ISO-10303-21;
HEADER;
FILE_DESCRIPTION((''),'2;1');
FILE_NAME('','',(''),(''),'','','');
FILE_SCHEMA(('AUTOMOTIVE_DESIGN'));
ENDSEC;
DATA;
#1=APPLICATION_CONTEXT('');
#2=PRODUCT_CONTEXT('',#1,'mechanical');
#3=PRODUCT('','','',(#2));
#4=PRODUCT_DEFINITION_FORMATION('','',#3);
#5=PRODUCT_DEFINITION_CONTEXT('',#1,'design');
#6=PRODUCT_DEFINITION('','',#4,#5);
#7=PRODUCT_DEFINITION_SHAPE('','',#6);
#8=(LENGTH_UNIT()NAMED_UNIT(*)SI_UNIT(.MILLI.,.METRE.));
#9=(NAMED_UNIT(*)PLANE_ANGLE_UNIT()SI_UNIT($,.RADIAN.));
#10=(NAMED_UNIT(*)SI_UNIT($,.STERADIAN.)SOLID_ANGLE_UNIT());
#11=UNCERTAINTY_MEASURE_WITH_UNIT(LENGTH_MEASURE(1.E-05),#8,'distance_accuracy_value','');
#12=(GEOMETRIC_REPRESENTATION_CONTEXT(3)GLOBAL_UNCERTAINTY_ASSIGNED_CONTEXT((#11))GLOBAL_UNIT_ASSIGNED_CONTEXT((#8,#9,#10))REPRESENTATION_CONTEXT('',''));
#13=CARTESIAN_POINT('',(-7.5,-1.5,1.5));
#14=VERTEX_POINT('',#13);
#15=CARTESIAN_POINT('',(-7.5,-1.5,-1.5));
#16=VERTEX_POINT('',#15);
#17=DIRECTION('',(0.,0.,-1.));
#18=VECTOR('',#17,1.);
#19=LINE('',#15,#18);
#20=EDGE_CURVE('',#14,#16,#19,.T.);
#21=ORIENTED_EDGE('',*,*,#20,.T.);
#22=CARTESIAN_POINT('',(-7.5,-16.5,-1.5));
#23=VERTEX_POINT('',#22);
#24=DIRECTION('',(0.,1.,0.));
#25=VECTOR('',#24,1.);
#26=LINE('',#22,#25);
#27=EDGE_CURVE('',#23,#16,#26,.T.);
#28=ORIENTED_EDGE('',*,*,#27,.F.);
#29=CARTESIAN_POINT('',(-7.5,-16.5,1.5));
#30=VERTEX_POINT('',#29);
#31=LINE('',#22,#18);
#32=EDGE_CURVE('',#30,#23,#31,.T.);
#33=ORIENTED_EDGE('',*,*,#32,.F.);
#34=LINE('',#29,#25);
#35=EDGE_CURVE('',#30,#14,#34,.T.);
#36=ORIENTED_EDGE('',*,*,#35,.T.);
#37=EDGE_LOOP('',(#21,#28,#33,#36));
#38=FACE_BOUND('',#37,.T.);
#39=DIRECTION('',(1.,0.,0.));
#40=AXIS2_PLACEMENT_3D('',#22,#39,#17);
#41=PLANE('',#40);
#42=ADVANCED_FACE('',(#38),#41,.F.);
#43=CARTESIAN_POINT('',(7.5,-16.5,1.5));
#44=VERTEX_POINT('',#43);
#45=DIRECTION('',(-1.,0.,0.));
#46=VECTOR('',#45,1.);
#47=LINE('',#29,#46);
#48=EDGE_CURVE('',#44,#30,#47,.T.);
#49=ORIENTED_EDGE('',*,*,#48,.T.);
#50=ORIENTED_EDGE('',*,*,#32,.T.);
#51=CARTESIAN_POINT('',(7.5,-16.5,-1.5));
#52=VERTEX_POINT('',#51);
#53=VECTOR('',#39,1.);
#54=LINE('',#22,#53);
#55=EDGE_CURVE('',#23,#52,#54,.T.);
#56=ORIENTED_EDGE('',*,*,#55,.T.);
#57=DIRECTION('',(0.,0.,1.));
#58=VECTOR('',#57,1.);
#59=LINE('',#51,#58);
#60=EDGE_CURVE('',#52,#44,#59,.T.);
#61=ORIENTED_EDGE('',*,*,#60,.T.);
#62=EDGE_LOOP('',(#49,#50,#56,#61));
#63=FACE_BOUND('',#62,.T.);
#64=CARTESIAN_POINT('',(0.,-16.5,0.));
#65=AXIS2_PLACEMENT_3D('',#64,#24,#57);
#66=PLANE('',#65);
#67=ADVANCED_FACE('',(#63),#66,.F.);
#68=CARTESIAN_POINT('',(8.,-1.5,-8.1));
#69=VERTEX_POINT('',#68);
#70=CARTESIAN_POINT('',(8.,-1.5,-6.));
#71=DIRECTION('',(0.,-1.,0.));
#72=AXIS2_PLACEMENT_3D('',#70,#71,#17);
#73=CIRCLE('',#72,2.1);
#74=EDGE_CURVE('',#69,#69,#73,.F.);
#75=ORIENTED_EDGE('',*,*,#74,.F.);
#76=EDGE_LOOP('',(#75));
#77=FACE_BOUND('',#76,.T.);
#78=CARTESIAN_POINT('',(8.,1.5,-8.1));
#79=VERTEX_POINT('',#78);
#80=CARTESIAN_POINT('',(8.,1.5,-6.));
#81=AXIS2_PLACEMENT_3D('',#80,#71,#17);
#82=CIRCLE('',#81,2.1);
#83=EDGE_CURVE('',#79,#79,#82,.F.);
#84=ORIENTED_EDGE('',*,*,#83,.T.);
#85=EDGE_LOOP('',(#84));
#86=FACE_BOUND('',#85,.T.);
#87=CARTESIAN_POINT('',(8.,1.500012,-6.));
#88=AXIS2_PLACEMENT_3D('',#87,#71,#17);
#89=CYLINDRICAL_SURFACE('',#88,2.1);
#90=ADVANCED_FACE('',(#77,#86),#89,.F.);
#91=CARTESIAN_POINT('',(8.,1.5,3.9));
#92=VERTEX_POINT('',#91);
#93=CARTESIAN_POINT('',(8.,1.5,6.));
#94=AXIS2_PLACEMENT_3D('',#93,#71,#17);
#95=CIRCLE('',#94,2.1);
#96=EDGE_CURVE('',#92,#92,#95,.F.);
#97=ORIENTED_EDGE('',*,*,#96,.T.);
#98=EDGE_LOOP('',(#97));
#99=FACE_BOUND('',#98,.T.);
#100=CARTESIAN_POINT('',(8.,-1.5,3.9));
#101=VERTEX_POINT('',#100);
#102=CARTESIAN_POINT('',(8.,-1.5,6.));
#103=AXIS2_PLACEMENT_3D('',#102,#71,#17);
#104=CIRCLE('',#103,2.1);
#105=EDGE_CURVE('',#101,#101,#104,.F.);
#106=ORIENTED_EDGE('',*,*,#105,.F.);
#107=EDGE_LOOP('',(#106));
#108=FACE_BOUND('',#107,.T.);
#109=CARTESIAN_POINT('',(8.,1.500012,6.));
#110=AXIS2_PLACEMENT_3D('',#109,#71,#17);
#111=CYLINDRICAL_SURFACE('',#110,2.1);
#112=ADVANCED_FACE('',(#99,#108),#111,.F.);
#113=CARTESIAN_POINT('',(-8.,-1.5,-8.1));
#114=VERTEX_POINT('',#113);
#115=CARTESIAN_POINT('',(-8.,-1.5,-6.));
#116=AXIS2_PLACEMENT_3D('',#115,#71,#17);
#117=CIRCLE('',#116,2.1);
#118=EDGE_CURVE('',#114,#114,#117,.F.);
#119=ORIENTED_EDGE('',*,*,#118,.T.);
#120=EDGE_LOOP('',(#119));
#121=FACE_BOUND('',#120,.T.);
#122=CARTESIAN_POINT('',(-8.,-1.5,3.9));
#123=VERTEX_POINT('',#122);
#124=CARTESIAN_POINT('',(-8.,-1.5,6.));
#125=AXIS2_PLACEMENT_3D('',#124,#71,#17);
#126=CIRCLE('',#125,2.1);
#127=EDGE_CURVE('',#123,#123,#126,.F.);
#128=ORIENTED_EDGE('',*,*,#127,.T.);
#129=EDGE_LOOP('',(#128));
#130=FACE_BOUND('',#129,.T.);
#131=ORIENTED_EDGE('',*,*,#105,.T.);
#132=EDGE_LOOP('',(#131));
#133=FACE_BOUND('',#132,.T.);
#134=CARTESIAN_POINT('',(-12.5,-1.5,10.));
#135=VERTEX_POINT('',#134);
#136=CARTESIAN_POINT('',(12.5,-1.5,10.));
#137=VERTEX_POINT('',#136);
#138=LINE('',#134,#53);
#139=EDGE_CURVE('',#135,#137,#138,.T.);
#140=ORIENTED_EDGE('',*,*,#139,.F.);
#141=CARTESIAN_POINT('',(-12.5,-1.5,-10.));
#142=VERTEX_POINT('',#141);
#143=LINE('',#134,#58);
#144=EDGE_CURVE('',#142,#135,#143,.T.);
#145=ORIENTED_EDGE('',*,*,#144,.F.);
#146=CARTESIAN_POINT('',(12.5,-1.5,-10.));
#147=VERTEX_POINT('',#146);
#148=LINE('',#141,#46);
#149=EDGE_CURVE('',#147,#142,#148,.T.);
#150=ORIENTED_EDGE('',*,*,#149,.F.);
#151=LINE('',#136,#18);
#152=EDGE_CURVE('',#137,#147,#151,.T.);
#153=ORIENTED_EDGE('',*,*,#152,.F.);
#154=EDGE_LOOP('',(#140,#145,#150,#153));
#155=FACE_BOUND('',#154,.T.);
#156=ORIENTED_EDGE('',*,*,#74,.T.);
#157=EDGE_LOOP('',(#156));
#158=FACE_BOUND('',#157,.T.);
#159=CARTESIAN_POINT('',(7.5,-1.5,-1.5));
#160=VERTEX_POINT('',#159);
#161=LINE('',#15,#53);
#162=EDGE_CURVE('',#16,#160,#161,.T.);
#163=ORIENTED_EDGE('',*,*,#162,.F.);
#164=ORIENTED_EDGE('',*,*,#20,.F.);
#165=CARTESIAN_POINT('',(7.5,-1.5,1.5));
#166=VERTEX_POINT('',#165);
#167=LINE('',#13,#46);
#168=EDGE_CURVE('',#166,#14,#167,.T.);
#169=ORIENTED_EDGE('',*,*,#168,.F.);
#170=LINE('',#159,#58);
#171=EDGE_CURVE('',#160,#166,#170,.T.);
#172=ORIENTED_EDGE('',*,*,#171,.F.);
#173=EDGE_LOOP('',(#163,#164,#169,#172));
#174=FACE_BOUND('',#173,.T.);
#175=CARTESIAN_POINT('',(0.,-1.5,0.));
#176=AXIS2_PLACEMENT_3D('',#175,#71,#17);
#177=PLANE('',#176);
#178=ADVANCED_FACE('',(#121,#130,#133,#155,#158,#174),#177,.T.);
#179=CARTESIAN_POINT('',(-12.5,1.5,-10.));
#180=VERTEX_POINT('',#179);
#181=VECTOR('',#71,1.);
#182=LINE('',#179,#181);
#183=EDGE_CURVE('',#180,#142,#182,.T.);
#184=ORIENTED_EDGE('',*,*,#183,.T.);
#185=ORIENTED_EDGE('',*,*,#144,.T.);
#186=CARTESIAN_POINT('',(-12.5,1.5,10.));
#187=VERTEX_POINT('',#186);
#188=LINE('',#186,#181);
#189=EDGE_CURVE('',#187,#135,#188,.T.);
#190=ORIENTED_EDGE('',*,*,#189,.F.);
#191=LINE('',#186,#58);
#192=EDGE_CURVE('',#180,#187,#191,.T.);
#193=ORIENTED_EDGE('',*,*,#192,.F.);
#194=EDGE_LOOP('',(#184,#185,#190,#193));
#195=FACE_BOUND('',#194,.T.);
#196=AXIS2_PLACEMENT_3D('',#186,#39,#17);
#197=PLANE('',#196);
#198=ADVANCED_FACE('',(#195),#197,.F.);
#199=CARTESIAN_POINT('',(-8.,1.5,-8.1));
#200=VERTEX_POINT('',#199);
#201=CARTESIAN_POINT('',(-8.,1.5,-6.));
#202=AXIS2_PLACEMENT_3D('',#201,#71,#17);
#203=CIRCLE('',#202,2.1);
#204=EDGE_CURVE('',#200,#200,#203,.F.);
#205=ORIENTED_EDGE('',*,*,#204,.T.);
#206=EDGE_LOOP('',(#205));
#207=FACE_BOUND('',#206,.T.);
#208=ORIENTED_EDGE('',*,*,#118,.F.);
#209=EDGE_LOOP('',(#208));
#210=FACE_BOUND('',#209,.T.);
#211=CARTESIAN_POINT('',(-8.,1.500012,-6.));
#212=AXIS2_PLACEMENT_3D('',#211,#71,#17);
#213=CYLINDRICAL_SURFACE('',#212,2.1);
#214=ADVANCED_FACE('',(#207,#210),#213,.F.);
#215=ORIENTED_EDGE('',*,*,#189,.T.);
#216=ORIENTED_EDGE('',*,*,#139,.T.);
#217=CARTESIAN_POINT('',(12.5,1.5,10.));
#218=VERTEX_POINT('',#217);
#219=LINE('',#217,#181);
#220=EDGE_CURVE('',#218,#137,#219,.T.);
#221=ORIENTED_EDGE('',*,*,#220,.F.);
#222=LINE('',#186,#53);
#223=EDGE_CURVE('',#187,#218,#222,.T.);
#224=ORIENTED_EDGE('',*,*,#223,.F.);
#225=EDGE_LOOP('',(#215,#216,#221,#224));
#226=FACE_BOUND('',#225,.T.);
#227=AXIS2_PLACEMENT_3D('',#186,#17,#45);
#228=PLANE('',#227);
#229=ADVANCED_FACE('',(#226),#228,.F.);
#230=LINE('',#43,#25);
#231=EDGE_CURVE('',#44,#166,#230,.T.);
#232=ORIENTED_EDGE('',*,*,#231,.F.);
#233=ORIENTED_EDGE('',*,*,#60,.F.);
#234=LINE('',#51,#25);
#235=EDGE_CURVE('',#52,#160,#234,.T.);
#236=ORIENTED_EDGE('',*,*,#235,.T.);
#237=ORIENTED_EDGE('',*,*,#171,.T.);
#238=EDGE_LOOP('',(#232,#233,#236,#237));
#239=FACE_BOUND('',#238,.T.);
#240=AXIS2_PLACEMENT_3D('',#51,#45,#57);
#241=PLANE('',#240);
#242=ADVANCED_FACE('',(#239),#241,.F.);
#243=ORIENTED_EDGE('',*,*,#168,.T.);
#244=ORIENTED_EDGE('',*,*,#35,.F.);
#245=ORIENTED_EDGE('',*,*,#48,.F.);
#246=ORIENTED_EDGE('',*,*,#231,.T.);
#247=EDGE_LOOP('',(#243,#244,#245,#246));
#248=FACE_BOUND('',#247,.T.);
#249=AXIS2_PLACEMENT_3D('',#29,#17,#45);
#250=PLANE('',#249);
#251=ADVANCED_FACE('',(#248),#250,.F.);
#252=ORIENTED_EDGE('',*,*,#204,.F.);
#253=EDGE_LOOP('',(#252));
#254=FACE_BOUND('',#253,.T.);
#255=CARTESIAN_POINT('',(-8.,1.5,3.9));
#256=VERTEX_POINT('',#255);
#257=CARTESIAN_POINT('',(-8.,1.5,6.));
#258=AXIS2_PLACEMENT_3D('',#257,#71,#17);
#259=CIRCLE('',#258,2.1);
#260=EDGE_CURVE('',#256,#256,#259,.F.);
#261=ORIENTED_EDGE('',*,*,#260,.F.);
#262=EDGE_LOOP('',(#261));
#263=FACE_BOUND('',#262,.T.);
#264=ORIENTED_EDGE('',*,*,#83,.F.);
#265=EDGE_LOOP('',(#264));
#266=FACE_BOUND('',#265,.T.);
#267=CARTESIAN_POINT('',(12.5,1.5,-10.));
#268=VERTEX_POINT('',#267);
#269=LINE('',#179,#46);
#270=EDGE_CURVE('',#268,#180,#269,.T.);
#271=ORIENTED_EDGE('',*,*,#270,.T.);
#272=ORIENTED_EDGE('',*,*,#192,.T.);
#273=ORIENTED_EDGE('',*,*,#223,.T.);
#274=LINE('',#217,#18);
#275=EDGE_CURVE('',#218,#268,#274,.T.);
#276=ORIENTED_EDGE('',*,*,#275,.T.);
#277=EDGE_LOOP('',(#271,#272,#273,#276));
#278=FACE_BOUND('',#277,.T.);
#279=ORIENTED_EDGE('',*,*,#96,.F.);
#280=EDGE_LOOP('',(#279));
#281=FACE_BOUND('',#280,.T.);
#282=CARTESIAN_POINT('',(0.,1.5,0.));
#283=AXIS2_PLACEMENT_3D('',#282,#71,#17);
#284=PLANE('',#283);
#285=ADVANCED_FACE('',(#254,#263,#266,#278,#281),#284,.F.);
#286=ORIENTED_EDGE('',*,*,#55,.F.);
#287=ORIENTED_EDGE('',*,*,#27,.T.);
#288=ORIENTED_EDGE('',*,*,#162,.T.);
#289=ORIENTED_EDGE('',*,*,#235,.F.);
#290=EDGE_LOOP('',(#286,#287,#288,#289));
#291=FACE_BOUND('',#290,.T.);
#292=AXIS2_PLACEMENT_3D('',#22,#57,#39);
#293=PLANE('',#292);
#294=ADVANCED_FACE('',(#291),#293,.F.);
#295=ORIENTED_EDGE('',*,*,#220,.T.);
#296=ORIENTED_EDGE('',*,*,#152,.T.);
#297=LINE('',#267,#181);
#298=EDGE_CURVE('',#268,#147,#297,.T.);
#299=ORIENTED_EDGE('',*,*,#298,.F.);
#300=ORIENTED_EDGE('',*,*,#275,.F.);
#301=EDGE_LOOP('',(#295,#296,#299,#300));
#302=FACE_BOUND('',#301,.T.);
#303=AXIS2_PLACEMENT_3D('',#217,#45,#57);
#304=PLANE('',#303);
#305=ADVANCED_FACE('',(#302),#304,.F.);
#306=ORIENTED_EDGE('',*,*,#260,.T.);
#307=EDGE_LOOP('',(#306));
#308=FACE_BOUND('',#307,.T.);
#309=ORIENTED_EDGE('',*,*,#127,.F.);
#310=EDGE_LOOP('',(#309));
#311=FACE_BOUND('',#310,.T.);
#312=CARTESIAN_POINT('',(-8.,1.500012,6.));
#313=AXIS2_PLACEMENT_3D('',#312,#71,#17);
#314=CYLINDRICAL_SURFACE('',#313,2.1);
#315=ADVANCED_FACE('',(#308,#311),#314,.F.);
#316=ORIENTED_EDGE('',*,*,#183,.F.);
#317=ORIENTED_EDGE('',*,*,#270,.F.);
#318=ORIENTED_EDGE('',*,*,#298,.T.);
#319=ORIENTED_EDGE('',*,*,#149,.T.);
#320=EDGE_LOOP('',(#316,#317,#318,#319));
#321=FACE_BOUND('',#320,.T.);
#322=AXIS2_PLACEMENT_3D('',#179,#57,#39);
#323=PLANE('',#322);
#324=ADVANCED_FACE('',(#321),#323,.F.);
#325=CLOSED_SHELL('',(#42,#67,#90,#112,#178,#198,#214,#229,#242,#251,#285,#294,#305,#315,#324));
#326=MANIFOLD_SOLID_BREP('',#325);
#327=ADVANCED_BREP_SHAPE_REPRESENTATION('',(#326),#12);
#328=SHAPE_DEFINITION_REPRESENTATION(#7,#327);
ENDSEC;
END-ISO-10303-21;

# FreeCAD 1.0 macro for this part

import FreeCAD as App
import Part
import Sketcher

V = App.Vector
Q = App.Units.Quantity


def add_polygon(sketch, points):
    """Adds a closed chain of lines whose ends are joined by coincident constraints."""
    first, n = sketch.GeometryCount, len(points)
    for a, b in zip(points, points[1:] + points[:1]):
        sketch.addGeometry(Part.LineSegment(App.Vector(*a, 0), App.Vector(*b, 0)), False)
    for i in range(n):
        sketch.addConstraint(Sketcher.Constraint("Coincident", first + i, 2, first + (i + 1) % n, 1))

doc = App.newDocument("Part")
params = doc.addObject("Spreadsheet::Sheet", "Params")
for row, (alias, value) in enumerate([
    ("sketch1_width", "25 mm"),
    ("sketch1_height", "20 mm"),
    ("pad1_length", "3 mm"),
    ("sketch2_width", "15 mm"),
    ("sketch2_height", "3 mm"),
    ("pad2_length", "15 mm"),
    ("sketch3_diameter", "4.2 mm"),
    ("sketch4_diameter", "4.2 mm"),
    ("sketch5_diameter", "4.2 mm"),
    ("sketch6_diameter", "4.2 mm"),
    ("sketch7_diameter", "4.2 mm"),
    ("pocket5_length", "1 mm"),
], start=1):
    params.set(f"A{row}", alias)
    params.set(f"B{row}", "=" + value)
    params.setAlias(f"B{row}", alias)

body = doc.addObject("PartDesign::Body", "Body")

sketch1 = doc.addObject("Sketcher::SketchObject", "Sketch")
body.addObject(sketch1)
sketch1.AttachmentSupport = (doc.XZ_Plane, [""])
sketch1.MapMode = "FlatFace"
add_polygon(sketch1, [(-12.5, -10), (-12.5, 10), (12.5, 10), (12.5, -10)])
sketch1.addConstraint([
    Sketcher.Constraint("Vertical", 0),
    Sketcher.Constraint("Horizontal", 1),
    Sketcher.Constraint("Vertical", 2),
    Sketcher.Constraint("Horizontal", 3),
    Sketcher.Constraint("Symmetric", 0, 2, 2, 2, -1, 1),
    Sketcher.Constraint("DistanceX", 1, 1, 1, 2, Q("25 mm")),
    Sketcher.Constraint("DistanceY", 0, 1, 0, 2, Q("20 mm")),
])
sketch1.setExpression("Constraints[9]", "Params.sketch1_width")
sketch1.setExpression("Constraints[10]", "Params.sketch1_height")
pad1 = doc.addObject("PartDesign::Pad", "Pad")
body.addObject(pad1)
pad1.Profile = sketch1
pad1.setExpression("Length", "Params.pad1_length")
pad1.Midplane = True

sketch2 = doc.addObject("Sketcher::SketchObject", "Sketch001")
body.addObject(sketch2)
sketch2.AttachmentSupport = (doc.XZ_Plane, [""])
sketch2.MapMode = "FlatFace"
sketch2.AttachmentOffset = App.Placement(V(0, 0, 1.5), App.Rotation())
add_polygon(sketch2, [(-7.5, 1.5), (-7.5, -1.5), (7.5, -1.5), (7.5, 1.5)])
sketch2.addConstraint([
    Sketcher.Constraint("Vertical", 0),
    Sketcher.Constraint("Horizontal", 1),
    Sketcher.Constraint("Vertical", 2),
    Sketcher.Constraint("Horizontal", 3),
    Sketcher.Constraint("Symmetric", 0, 2, 2, 2, -1, 1),
    Sketcher.Constraint("DistanceX", 1, 1, 1, 2, Q("15 mm")),
    Sketcher.Constraint("DistanceY", 0, 2, 0, 1, Q("3 mm")),
])
sketch2.setExpression("Constraints[9]", "Params.sketch2_width")
sketch2.setExpression("Constraints[10]", "Params.sketch2_height")
pad2 = doc.addObject("PartDesign::Pad", "Pad001")
body.addObject(pad2)
pad2.Profile = sketch2
pad2.setExpression("Length", "Params.pad2_length")

sketch3 = doc.addObject("Sketcher::SketchObject", "Sketch002")
body.addObject(sketch3)
sketch3.AttachmentSupport = (doc.XZ_Plane, [""])
sketch3.MapMode = "FlatFace"
sketch3.AttachmentOffset = App.Placement(V(0, 0, -1.5), App.Rotation())
sketch3.addGeometry(Part.Circle(V(-8, -6, 0), V(0, 0, 1), 2.1), False)
sketch3.addConstraint([
    Sketcher.Constraint("Diameter", 0, Q("4.2 mm")),
    Sketcher.Constraint("DistanceX", 0, 3, -1, 1, Q("8 mm")),
    Sketcher.Constraint("DistanceY", 0, 3, -1, 1, Q("6 mm")),
])
sketch3.setExpression("Constraints[0]", "Params.sketch3_diameter")
pocket1 = doc.addObject("PartDesign::Pocket", "Pocket")
body.addObject(pocket1)
pocket1.Profile = sketch3
pocket1.Type = "UpToFirst"
pocket1.Reversed = True

sketch4 = doc.addObject("Sketcher::SketchObject", "Sketch003")
body.addObject(sketch4)
sketch4.AttachmentSupport = (doc.XZ_Plane, [""])
sketch4.MapMode = "FlatFace"
sketch4.AttachmentOffset = App.Placement(V(0, 0, -1.5), App.Rotation())
sketch4.addGeometry(Part.Circle(V(8, -6, 0), V(0, 0, 1), 2.1), False)
sketch4.addConstraint([
    Sketcher.Constraint("Diameter", 0, Q("4.2 mm")),
    Sketcher.Constraint("DistanceX", -1, 1, 0, 3, Q("8 mm")),
    Sketcher.Constraint("DistanceY", 0, 3, -1, 1, Q("6 mm")),
])
sketch4.setExpression("Constraints[0]", "Params.sketch4_diameter")
pocket2 = doc.addObject("PartDesign::Pocket", "Pocket001")
body.addObject(pocket2)
pocket2.Profile = sketch4
pocket2.Type = "UpToFirst"
pocket2.Reversed = True

sketch5 = doc.addObject("Sketcher::SketchObject", "Sketch004")
body.addObject(sketch5)
sketch5.AttachmentSupport = (doc.XZ_Plane, [""])
sketch5.MapMode = "FlatFace"
sketch5.AttachmentOffset = App.Placement(V(0, 0, -1.5), App.Rotation())
sketch5.addGeometry(Part.Circle(V(8, 6, 0), V(0, 0, 1), 2.1), False)
sketch5.addConstraint([
    Sketcher.Constraint("Diameter", 0, Q("4.2 mm")),
    Sketcher.Constraint("DistanceX", -1, 1, 0, 3, Q("8 mm")),
    Sketcher.Constraint("DistanceY", -1, 1, 0, 3, Q("6 mm")),
])
sketch5.setExpression("Constraints[0]", "Params.sketch5_diameter")
pocket3 = doc.addObject("PartDesign::Pocket", "Pocket002")
body.addObject(pocket3)
pocket3.Profile = sketch5
pocket3.Type = "UpToFirst"
pocket3.Reversed = True

sketch6 = doc.addObject("Sketcher::SketchObject", "Sketch005")
body.addObject(sketch6)
sketch6.AttachmentSupport = (doc.XZ_Plane, [""])
sketch6.MapMode = "FlatFace"
sketch6.AttachmentOffset = App.Placement(V(0, 0, -1.5), App.Rotation())
sketch6.addGeometry(Part.Circle(V(-8, 6, 0), V(0, 0, 1), 2.1), False)
sketch6.addConstraint([
    Sketcher.Constraint("Diameter", 0, Q("4.2 mm")),
    Sketcher.Constraint("DistanceX", 0, 3, -1, 1, Q("8 mm")),
    Sketcher.Constraint("DistanceY", -1, 1, 0, 3, Q("6 mm")),
])
sketch6.setExpression("Constraints[0]", "Params.sketch6_diameter")
pocket4 = doc.addObject("PartDesign::Pocket", "Pocket003")
body.addObject(pocket4)
pocket4.Profile = sketch6
pocket4.Type = "UpToFirst"
pocket4.Reversed = True

sketch7 = doc.addObject("Sketcher::SketchObject", "Sketch006")
body.addObject(sketch7)
sketch7.AttachmentSupport = (doc.XZ_Plane, [""])
sketch7.MapMode = "FlatFace"
sketch7.AttachmentOffset = App.Placement(V(0, 0, -1.5), App.Rotation())
sketch7.addGeometry([
    Part.Circle(V(-8, -6, 0), V(0, 0, 1), 2.1),
    Part.Circle(V(8, -6, 0), V(0, 0, 1), 2.1),
    Part.Circle(V(8, 6, 0), V(0, 0, 1), 2.1),
    Part.Circle(V(-8, 6, 0), V(0, 0, 1), 2.1),
], False)
sketch7.addConstraint([
    Sketcher.Constraint("Equal", 0, 1),
    Sketcher.Constraint("Equal", 1, 2),
    Sketcher.Constraint("Equal", 2, 3),
    Sketcher.Constraint("Symmetric", 0, 3, 2, 3, -1, 1),
    Sketcher.Constraint("Symmetric", 1, 3, 3, 3, -1, 1),
    Sketcher.Constraint("Symmetric", 0, 3, 1, 3, -2),
    Sketcher.Constraint("Diameter", 0, Q("4.2 mm")),
    Sketcher.Constraint("DistanceX", 0, 3, -1, 1, Q("8 mm")),
    Sketcher.Constraint("DistanceY", 0, 3, -1, 1, Q("6 mm")),
])
sketch7.setExpression("Constraints[6]", "Params.sketch7_diameter")
pocket5 = doc.addObject("PartDesign::Pocket", "Pocket004")
body.addObject(pocket5)
pocket5.Profile = sketch7
pocket5.setExpression("Length", "Params.pocket5_length")

doc.recompute()
